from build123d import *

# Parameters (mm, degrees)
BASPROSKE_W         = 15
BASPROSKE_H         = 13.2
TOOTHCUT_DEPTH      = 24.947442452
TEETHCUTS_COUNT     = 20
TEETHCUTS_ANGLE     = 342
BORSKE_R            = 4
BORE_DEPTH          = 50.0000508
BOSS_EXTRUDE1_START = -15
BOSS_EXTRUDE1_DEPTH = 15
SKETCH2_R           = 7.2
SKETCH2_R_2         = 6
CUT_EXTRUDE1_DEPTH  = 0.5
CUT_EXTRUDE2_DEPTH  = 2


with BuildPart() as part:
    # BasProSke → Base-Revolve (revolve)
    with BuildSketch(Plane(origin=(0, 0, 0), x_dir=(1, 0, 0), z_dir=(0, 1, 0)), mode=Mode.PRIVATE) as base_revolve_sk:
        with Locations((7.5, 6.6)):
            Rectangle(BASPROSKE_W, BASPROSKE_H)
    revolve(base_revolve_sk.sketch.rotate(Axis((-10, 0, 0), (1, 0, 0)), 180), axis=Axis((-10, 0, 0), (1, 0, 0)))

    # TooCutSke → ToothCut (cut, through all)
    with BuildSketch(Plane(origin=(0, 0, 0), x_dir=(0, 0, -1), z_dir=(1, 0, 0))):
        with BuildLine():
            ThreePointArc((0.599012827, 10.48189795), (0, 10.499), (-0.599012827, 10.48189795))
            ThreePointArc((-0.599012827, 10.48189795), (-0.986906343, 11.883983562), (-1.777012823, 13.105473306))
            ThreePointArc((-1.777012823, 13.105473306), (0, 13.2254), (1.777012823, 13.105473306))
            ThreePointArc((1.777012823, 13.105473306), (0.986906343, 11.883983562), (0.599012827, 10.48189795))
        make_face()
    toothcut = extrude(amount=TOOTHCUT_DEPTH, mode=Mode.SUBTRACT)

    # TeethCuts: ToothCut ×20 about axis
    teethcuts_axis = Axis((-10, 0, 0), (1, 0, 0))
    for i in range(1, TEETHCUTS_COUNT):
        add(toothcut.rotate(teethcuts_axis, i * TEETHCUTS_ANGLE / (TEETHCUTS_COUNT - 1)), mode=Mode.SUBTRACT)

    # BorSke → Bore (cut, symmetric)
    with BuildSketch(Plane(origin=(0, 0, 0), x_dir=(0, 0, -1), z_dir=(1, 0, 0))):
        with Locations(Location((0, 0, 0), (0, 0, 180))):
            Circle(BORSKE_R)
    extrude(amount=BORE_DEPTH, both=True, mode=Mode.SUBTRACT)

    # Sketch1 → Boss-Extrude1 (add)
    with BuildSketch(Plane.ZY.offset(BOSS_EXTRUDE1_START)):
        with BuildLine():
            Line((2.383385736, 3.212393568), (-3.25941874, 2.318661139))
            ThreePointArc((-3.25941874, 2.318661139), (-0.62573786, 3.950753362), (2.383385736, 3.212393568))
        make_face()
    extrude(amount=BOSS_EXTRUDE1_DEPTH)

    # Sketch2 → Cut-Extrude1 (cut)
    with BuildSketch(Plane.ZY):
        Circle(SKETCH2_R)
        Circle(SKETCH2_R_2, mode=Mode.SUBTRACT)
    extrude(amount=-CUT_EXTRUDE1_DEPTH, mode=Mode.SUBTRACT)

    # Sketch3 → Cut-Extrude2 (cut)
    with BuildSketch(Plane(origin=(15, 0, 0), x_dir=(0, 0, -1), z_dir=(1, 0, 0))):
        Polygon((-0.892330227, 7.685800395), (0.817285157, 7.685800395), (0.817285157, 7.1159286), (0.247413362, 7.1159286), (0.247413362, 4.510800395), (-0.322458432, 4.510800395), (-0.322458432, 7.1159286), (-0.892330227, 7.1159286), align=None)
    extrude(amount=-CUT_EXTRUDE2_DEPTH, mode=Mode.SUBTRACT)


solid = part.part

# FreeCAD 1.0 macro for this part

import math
import FreeCAD as App
import Part
import Sketcher

V = App.Vector
Q = App.Units.Quantity

doc = App.newDocument("Part")
params = doc.addObject("Spreadsheet::Sheet", "Params")
for row, (alias, value) in enumerate([
    ("sketch1_width", "15 mm"),
    ("sketch1_height", "13.2 mm"),
    ("revolution_angle", "360 deg"),
    ("sketch2_radius", "4.8 mm"),
    ("sketch3_diameter", "8 mm"),
    ("pocket2_length", "100.000102 mm"),
    ("sketch4_radius", "4 mm"),
    ("pad1_length", "15 mm"),
    ("sketch5_diameter", "12 mm"),
    ("sketch5_diameter2", "14.4 mm"),
    ("pocket3_length", "0.5 mm"),
    ("pocket4_length", "2 mm"),
], start=1):
    params.set(f"A{row}", alias)
    params.set(f"B{row}", "=" + value)
    params.setAlias(f"B{row}", alias)

body = doc.addObject("PartDesign::Body", "Body")

# Sketch on XZ plane
sketch1 = body.newObject("Sketcher::SketchObject", "Sketch")
sketch1.AttachmentSupport = (doc.getObject("XZ_Plane"), [""])
sketch1.MapMode = "FlatFace"
sketch1.addGeometry(Part.LineSegment(V(0, -13.2, 0), V(0, 0, 0)), False)
sketch1.addGeometry(Part.LineSegment(V(0, 0, 0), V(15, 0, 0)), False)
sketch1.addGeometry(Part.LineSegment(V(15, 0, 0), V(15, -13.2, 0)), False)
sketch1.addGeometry(Part.LineSegment(V(15, -13.2, 0), V(0, -13.2, 0)), False)
sketch1.addConstraint(Sketcher.Constraint("Coincident", 0, 2, 1, 1))
sketch1.addConstraint(Sketcher.Constraint("Coincident", 1, 2, 2, 1))
sketch1.addConstraint(Sketcher.Constraint("Coincident", 2, 2, 3, 1))
sketch1.addConstraint(Sketcher.Constraint("Coincident", 3, 2, 0, 1))
sketch1.addConstraint(Sketcher.Constraint("Vertical", 0))
sketch1.addConstraint(Sketcher.Constraint("Horizontal", 1))
sketch1.addConstraint(Sketcher.Constraint("Vertical", 2))
sketch1.addConstraint(Sketcher.Constraint("Horizontal", 3))
sketch1.addConstraint(Sketcher.Constraint("Coincident", 0, 2, -1, 1))
sketch1.addConstraint(Sketcher.Constraint("DistanceX", 1, 1, 1, 2, 15.0))
sketch1.addConstraint(Sketcher.Constraint("DistanceY", 0, 1, 0, 2, 13.2))
sketch1.setExpression("Constraints[9]", "Params.sketch1_width")
sketch1.setExpression("Constraints[10]", "Params.sketch1_height")
revolution = body.newObject("PartDesign::Revolution", "Revolution")
revolution.Profile = sketch1
revolution.ReferenceAxis = (sketch1, ["H_Axis"])
revolution.setExpression("Angle", "Params.revolution_angle")

# Sketch on YZ plane
sketch2 = body.newObject("Sketcher::SketchObject", "Sketch001")
sketch2.AttachmentSupport = (doc.getObject("YZ_Plane"), [""])
sketch2.MapMode = "FlatFace"
sketch2.addGeometry(Part.ArcOfCircle(Part.Circle(V(0, 0, 0), V(0, 0, 1), 10.499), math.radians(-3.270745), math.radians(3.270745)), False)
sketch2.addGeometry(Part.ArcOfCircle(Part.Circle(V(9.917855, -5.365758, 0), V(0, 0, 1), 4.8), math.radians(48.387666), math.radians(83.25164)), False)
sketch2.addGeometry(Part.ArcOfCircle(Part.Circle(V(0, 0, 0), V(0, 0, 1), 13.2254), math.radians(-7.721824), math.radians(7.721824)), False)
sketch2.addGeometry(Part.ArcOfCircle(Part.Circle(V(9.917855, 5.365758, 0), V(0, 0, 1), 4.8), math.radians(-83.25164), math.radians(-48.387666)), False)
sketch2.addConstraint(Sketcher.Constraint("Coincident", 0, 1, 1, 2))
sketch2.addConstraint(Sketcher.Constraint("Coincident", 1, 1, 2, 1))
sketch2.addConstraint(Sketcher.Constraint("Coincident", 2, 2, 3, 2))
sketch2.addConstraint(Sketcher.Constraint("Coincident", 3, 1, 0, 2))
sketch2.addConstraint(Sketcher.Constraint("Coincident", 0, 3, -1, 1))
sketch2.addConstraint(Sketcher.Constraint("Coincident", 2, 3, -1, 1))
sketch2.addConstraint(Sketcher.Constraint("Equal", 1, 3))
sketch2.addConstraint(Sketcher.Constraint("Symmetric", 1, 3, 3, 3, -1))
sketch2.addConstraint(Sketcher.Constraint("Radius", 1, 4.8))
sketch2.addConstraint(Sketcher.Constraint("Radius", 0, 10.499))
sketch2.addConstraint(Sketcher.Constraint("Radius", 2, 13.2254))
sketch2.addConstraint(Sketcher.Constraint("DistanceY", 1, 1, 0, 1, 1.178))
sketch2.addConstraint(Sketcher.Constraint("DistanceY", 0, 1, 3, 3, 5.96477))
sketch2.setExpression("Constraints[8]", "Params.sketch2_radius")
pocket1 = body.newObject("PartDesign::Pocket", "Pocket")
pocket1.Profile = sketch2
pocket1.Type = "ThroughAll"
pocket1.Reversed = True
doc.recompute()

polarpattern = body.newObject("PartDesign::PolarPattern", "PolarPattern")
polarpattern.Originals = [pocket1]
polarpattern.Axis = (doc.getObject("X_Axis"), [""])
polarpattern.Angle = 360
polarpattern.Occurrences = 20
body.Tip = polarpattern

# Sketch on YZ plane
sketch3 = body.newObject("Sketcher::SketchObject", "Sketch002")
sketch3.AttachmentSupport = (doc.getObject("YZ_Plane"), [""])
sketch3.MapMode = "FlatFace"
sketch3.addGeometry(Part.Circle(V(0, 0, 0), V(0, 0, 1), 4), False)
sketch3.addConstraint(Sketcher.Constraint("Coincident", 0, 3, -1, 1))
sketch3.addConstraint(Sketcher.Constraint("Diameter", 0, 8.0))
sketch3.setExpression("Constraints[1]", "Params.sketch3_diameter")
pocket2 = body.newObject("PartDesign::Pocket", "Pocket001")
pocket2.Profile = sketch3
pocket2.setExpression("Length", "Params.pocket2_length")
pocket2.Midplane = True

# Sketch on YZ plane
sketch4 = body.newObject("Sketcher::SketchObject", "Sketch003")
sketch4.AttachmentSupport = (doc.getObject("YZ_Plane"), [""])
sketch4.MapMode = "FlatFace"
sketch4.AttachmentOffset = App.Placement(V(0, 0, 15), App.Rotation())
sketch4.addGeometry(Part.LineSegment(V(2.318661, -3.259419, 0), V(3.212394, 2.383386, 0)), False)
sketch4.addGeometry(Part.ArcOfCircle(Part.Circle(V(0, 0, 0), V(0, 0, 1), 4), math.radians(-54.572996), math.radians(36.572996)), False)
sketch4.addConstraint(Sketcher.Constraint("Coincident", 0, 1, 1, 1))
sketch4.addConstraint(Sketcher.Constraint("Coincident", 1, 2, 0, 2))
sketch4.addConstraint(Sketcher.Constraint("Coincident", 1, 3, -1, 1))
sketch4.addConstraint(Sketcher.Constraint("Radius", 1, 4.0))
sketch4.addConstraint(Sketcher.Constraint("Angle", 0, Q("81 deg")))
sketch4.addConstraint(Sketcher.Constraint("DistanceX", -1, 1, 0, 1, 2.318661))
sketch4.setExpression("Constraints[3]", "Params.sketch4_radius")
pad1 = body.newObject("PartDesign::Pad", "Pad")
pad1.Profile = sketch4
pad1.setExpression("Length", "Params.pad1_length")
pad1.Reversed = True

# Sketch on YZ plane
sketch5 = body.newObject("Sketcher::SketchObject", "Sketch004")
sketch5.AttachmentSupport = (doc.getObject("YZ_Plane"), [""])
sketch5.MapMode = "FlatFace"
sketch5.addGeometry(Part.Circle(V(0, 0, 0), V(0, 0, 1), 7.2), False)
sketch5.addGeometry(Part.Circle(V(0, 0, 0), V(0, 0, 1), 6), False)
sketch5.addConstraint(Sketcher.Constraint("Coincident", 0, 3, -1, 1))
sketch5.addConstraint(Sketcher.Constraint("Coincident", 1, 3, -1, 1))
sketch5.addConstraint(Sketcher.Constraint("Diameter", 1, 12.0))
sketch5.addConstraint(Sketcher.Constraint("Diameter", 0, 14.4))
sketch5.setExpression("Constraints[2]", "Params.sketch5_diameter")
sketch5.setExpression("Constraints[3]", "Params.sketch5_diameter2")
pocket3 = body.newObject("PartDesign::Pocket", "Pocket002")
pocket3.Profile = sketch5
pocket3.setExpression("Length", "Params.pocket3_length")
pocket3.Reversed = True

# Sketch on YZ plane
sketch6 = body.newObject("Sketcher::SketchObject", "Sketch005")
sketch6.AttachmentSupport = (doc.getObject("YZ_Plane"), [""])
sketch6.MapMode = "FlatFace"
sketch6.AttachmentOffset = App.Placement(V(0, 0, 15), App.Rotation())
sketch6.addGeometry(Part.LineSegment(V(7.6858, -0.817285, 0), V(7.6858, 0.89233, 0)), False)
sketch6.addGeometry(Part.LineSegment(V(7.6858, 0.89233, 0), V(7.115929, 0.89233, 0)), False)
sketch6.addGeometry(Part.LineSegment(V(7.115929, 0.89233, 0), V(7.115929, 0.322458, 0)), False)
sketch6.addGeometry(Part.LineSegment(V(7.115929, 0.322458, 0), V(4.5108, 0.322458, 0)), False)
sketch6.addGeometry(Part.LineSegment(V(4.5108, 0.322458, 0), V(4.5108, -0.247413, 0)), False)
sketch6.addGeometry(Part.LineSegment(V(4.5108, -0.247413, 0), V(7.115929, -0.247413, 0)), False)
sketch6.addGeometry(Part.LineSegment(V(7.115929, -0.247413, 0), V(7.115929, -0.817285, 0)), False)
sketch6.addGeometry(Part.LineSegment(V(7.115929, -0.817285, 0), V(7.6858, -0.817285, 0)), False)
sketch6.addConstraint(Sketcher.Constraint("Coincident", 0, 2, 1, 1))
sketch6.addConstraint(Sketcher.Constraint("Coincident", 1, 2, 2, 1))
sketch6.addConstraint(Sketcher.Constraint("Coincident", 2, 2, 3, 1))
sketch6.addConstraint(Sketcher.Constraint("Coincident", 3, 2, 4, 1))
sketch6.addConstraint(Sketcher.Constraint("Coincident", 4, 2, 5, 1))
sketch6.addConstraint(Sketcher.Constraint("Coincident", 5, 2, 6, 1))
sketch6.addConstraint(Sketcher.Constraint("Coincident", 6, 2, 7, 1))
sketch6.addConstraint(Sketcher.Constraint("Coincident", 7, 2, 0, 1))
sketch6.addConstraint(Sketcher.Constraint("Vertical", 0))
sketch6.addConstraint(Sketcher.Constraint("Horizontal", 1))
sketch6.addConstraint(Sketcher.Constraint("Vertical", 2))
sketch6.addConstraint(Sketcher.Constraint("Horizontal", 3))
sketch6.addConstraint(Sketcher.Constraint("Vertical", 4))
sketch6.addConstraint(Sketcher.Constraint("Horizontal", 5))
sketch6.addConstraint(Sketcher.Constraint("Vertical", 6))
sketch6.addConstraint(Sketcher.Constraint("Horizontal", 7))
sketch6.addConstraint(Sketcher.Constraint("Vertical", 2, 2, 5, 2))
sketch6.addConstraint(Sketcher.Constraint("Equal", 7, 2))
sketch6.addConstraint(Sketcher.Constraint("Equal", 2, 4))
sketch6.addConstraint(Sketcher.Constraint("Equal", 4, 6))
sketch6.addConstraint(Sketcher.Constraint("DistanceX", 3, 2, 0, 2, 3.175))
sketch6.addConstraint(Sketcher.Constraint("DistanceX", 1, 2, 1, 1, 0.569872))
sketch6.addConstraint(Sketcher.Constraint("DistanceX", -1, 1, 0, 2, 7.6858))
sketch6.addConstraint(Sketcher.Constraint("DistanceY", -1, 1, 0, 2, 0.89233))
pocket4 = body.newObject("PartDesign::Pocket", "Pocket003")
pocket4.Profile = sketch6
pocket4.setExpression("Length", "Params.pocket4_length")

doc.recompute()
